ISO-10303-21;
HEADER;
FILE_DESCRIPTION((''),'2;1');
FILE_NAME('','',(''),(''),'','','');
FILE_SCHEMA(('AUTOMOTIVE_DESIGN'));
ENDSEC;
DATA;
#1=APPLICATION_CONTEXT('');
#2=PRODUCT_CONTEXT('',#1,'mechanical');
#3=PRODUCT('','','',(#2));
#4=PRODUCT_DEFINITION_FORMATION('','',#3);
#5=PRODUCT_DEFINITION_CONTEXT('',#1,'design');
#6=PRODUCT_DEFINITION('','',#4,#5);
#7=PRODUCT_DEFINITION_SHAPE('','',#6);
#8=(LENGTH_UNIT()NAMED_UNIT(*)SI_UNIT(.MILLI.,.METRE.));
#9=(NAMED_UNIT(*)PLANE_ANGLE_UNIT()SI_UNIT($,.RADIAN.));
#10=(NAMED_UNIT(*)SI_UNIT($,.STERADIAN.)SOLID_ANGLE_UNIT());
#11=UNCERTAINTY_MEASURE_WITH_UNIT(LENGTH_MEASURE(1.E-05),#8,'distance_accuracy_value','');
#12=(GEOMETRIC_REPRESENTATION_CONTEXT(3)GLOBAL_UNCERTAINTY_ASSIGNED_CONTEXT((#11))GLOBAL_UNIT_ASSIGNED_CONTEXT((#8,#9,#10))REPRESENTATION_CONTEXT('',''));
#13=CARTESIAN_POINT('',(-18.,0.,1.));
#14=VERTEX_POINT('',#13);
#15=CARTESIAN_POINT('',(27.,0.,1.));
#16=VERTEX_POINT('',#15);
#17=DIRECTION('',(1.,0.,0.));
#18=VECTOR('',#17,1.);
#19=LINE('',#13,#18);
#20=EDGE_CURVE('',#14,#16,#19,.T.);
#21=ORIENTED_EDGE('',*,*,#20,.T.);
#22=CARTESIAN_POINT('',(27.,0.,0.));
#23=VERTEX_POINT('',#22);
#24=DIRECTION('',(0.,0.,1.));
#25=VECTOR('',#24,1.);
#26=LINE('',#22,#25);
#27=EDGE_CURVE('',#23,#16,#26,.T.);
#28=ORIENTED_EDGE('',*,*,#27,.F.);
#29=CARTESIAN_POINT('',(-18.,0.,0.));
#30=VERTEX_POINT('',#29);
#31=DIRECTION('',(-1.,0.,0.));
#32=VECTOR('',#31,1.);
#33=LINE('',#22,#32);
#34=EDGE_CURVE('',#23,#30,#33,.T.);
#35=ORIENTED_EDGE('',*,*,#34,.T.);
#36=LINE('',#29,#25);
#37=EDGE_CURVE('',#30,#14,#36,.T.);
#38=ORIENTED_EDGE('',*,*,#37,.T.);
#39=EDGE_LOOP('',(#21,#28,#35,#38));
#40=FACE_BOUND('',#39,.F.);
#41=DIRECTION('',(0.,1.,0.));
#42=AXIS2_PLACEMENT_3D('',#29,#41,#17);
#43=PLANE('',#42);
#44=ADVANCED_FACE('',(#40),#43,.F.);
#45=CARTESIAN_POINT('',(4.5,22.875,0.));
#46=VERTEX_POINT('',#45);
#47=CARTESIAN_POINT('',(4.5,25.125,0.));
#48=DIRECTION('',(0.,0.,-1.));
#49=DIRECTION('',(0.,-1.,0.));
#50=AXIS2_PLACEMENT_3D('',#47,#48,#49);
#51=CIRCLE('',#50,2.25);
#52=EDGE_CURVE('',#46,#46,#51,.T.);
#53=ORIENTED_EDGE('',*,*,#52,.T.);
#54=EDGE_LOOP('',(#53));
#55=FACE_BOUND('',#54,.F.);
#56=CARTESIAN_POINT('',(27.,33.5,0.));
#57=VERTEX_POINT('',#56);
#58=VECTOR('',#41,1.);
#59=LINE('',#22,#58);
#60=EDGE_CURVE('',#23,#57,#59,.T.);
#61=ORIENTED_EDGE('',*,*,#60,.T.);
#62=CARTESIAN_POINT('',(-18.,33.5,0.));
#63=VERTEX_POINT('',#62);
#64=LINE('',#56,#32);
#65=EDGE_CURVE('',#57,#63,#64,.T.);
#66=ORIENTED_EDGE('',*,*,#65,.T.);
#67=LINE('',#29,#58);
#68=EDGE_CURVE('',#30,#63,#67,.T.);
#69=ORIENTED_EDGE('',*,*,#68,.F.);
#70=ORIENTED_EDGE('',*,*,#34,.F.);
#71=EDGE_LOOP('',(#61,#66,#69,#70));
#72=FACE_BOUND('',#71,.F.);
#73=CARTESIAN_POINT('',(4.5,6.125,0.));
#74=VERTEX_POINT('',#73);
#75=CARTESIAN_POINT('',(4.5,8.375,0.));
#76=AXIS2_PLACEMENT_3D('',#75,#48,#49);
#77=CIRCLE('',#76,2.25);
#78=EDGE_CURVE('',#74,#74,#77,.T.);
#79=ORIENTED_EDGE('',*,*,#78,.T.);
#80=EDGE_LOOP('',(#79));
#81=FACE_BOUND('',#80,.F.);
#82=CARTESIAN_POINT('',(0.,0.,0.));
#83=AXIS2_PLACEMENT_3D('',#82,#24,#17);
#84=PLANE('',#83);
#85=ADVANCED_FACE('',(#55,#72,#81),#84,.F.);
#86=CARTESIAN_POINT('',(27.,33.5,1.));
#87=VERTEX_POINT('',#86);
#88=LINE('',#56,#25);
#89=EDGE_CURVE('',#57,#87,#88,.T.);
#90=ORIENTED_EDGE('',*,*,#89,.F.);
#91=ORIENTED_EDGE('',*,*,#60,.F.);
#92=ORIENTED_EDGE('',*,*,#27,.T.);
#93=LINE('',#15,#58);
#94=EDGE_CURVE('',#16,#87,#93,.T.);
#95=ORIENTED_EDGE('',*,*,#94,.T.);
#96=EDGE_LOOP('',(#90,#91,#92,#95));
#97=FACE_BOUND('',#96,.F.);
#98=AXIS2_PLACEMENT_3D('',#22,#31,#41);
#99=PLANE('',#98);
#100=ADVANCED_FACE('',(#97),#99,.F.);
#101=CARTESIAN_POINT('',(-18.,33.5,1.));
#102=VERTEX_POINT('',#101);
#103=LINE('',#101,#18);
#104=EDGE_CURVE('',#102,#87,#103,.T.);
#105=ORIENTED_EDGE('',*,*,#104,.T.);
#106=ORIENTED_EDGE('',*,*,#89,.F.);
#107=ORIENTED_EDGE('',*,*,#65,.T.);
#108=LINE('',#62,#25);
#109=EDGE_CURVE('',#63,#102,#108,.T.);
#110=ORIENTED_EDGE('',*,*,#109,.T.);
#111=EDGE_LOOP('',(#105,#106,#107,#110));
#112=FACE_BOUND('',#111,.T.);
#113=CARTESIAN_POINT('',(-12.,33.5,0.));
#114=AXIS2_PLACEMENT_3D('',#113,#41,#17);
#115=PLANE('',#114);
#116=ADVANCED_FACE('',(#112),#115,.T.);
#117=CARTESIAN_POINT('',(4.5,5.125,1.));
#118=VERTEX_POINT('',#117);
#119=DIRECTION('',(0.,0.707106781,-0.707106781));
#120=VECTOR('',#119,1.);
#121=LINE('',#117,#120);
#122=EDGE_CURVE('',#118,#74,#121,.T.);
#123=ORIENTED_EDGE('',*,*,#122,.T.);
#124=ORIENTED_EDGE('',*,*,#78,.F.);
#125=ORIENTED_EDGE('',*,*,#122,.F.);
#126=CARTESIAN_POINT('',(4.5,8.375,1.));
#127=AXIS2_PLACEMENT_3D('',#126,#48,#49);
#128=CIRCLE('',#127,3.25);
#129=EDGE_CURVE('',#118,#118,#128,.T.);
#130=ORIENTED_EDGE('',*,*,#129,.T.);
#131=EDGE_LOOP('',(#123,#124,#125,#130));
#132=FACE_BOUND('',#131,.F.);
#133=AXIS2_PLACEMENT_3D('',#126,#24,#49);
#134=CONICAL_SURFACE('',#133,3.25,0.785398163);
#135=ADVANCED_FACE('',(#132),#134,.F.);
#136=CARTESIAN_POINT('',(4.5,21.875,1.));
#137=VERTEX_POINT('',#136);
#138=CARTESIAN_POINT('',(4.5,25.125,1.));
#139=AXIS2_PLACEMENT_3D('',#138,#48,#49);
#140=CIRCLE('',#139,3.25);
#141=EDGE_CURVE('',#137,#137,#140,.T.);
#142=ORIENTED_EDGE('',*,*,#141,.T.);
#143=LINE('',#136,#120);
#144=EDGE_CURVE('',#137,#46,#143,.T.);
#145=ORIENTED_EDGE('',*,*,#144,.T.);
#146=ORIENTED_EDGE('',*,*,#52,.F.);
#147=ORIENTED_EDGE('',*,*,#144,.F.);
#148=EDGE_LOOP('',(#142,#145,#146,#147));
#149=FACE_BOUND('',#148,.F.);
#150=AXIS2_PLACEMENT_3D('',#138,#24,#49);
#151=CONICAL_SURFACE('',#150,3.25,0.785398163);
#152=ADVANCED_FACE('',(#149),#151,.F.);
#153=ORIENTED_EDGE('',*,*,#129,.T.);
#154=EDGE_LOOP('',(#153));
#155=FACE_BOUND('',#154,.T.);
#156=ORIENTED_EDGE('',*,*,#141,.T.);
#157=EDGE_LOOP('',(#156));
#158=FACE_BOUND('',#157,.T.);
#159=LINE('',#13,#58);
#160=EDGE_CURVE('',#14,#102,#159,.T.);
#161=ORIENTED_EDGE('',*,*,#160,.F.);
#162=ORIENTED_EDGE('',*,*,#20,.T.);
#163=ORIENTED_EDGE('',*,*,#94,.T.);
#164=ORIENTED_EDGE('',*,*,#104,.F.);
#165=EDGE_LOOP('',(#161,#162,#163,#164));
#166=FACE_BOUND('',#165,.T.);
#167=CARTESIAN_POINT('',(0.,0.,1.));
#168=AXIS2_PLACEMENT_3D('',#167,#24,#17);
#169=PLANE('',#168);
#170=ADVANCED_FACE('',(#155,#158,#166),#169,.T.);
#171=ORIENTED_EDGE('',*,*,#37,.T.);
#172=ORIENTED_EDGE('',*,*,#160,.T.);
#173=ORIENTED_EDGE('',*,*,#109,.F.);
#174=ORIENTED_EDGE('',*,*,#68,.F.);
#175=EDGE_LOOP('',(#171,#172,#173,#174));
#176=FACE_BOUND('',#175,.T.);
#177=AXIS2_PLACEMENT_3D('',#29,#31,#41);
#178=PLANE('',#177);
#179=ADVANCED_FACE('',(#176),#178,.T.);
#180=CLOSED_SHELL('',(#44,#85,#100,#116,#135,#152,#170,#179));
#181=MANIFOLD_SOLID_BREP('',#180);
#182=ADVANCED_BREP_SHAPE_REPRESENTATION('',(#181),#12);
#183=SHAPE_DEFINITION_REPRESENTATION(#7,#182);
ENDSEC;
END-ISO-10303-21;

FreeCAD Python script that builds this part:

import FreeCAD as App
import Part
import Sketcher

V = App.Vector

doc = App.newDocument("Part")
body = doc.addObject("PartDesign::Body", "Body")

# Sketch on XY plane
sketch1 = body.newObject("Sketcher::SketchObject", "Sketch")
sketch1.AttachmentSupport = (doc.getObject("XY_Plane"), [""])
sketch1.MapMode = "FlatFace"
sketch1.addGeometry([
    Part.LineSegment(V(27, 33.5, 0), V(-18, 33.5, 0)),
    Part.LineSegment(V(-18, 33.5, 0), V(-18, 0, 0)),
    Part.LineSegment(V(-18, 0, 0), V(27, 0, 0)),
    Part.LineSegment(V(27, 0, 0), V(27, 33.5, 0)),
], False)
sketch1.addConstraint([
    Sketcher.Constraint("Coincident", 0, 2, 1, 1),
    Sketcher.Constraint("Coincident", 1, 2, 2, 1),
    Sketcher.Constraint("Coincident", 2, 2, 3, 1),
    Sketcher.Constraint("Coincident", 3, 2, 0, 1),
    Sketcher.Constraint("Horizontal", 0),
    Sketcher.Constraint("Vertical", 1),
    Sketcher.Constraint("Horizontal", 2),
    Sketcher.Constraint("Vertical", 3),
    Sketcher.Constraint("PointOnObject", 1, 2, -1),
    Sketcher.Constraint("DistanceX", 0, 2, 0, 1, 45.0),
    Sketcher.Constraint("DistanceY", 1, 2, 1, 1, 33.5),
    Sketcher.Constraint("DistanceX", 0, 2, -1, 1, 18.0),
])
pad1 = body.newObject("PartDesign::Pad", "Pad")
pad1.Profile = sketch1
pad1.Length = 1

# Sketch on XY plane
sketch2 = body.newObject("Sketcher::SketchObject", "Sketch001")
sketch2.AttachmentSupport = (doc.getObject("XY_Plane"), [""])
sketch2.MapMode = "FlatFace"
sketch2.AttachmentOffset = App.Placement(V(0, 0, 1), App.Rotation())
sketch2.addGeometry([
    Part.Circle(V(4.5, 8.375, 0), V(0, 0, 1), 1.8),
    Part.Circle(V(4.5, 25.125, 0), V(0, 0, 1), 1.8),
], False)
sketch2.addConstraint([
    Sketcher.Constraint("Equal", 0, 1),
    Sketcher.Constraint("Vertical", 0, 3, 1, 3),
    Sketcher.Constraint("Diameter", 0, 3.6),
    Sketcher.Constraint("DistanceX", -1, 1, 0, 3, 4.5),
    Sketcher.Constraint("DistanceY", 0, 3, 1, 3, 16.75),
    Sketcher.Constraint("DistanceY", -1, 1, 0, 3, 8.375),
])
doc.recompute()
hole = body.newObject("PartDesign::Hole", "Hole")
hole.Profile = sketch2
hole.ThreadType = "None"
hole.Diameter = 3.6
hole.DepthType = "ThroughAll"
hole.HoleCutType = "Countersink"
hole.HoleCutDiameter = 6.5
hole.HoleCutCountersinkAngle = 90

doc.recompute()
